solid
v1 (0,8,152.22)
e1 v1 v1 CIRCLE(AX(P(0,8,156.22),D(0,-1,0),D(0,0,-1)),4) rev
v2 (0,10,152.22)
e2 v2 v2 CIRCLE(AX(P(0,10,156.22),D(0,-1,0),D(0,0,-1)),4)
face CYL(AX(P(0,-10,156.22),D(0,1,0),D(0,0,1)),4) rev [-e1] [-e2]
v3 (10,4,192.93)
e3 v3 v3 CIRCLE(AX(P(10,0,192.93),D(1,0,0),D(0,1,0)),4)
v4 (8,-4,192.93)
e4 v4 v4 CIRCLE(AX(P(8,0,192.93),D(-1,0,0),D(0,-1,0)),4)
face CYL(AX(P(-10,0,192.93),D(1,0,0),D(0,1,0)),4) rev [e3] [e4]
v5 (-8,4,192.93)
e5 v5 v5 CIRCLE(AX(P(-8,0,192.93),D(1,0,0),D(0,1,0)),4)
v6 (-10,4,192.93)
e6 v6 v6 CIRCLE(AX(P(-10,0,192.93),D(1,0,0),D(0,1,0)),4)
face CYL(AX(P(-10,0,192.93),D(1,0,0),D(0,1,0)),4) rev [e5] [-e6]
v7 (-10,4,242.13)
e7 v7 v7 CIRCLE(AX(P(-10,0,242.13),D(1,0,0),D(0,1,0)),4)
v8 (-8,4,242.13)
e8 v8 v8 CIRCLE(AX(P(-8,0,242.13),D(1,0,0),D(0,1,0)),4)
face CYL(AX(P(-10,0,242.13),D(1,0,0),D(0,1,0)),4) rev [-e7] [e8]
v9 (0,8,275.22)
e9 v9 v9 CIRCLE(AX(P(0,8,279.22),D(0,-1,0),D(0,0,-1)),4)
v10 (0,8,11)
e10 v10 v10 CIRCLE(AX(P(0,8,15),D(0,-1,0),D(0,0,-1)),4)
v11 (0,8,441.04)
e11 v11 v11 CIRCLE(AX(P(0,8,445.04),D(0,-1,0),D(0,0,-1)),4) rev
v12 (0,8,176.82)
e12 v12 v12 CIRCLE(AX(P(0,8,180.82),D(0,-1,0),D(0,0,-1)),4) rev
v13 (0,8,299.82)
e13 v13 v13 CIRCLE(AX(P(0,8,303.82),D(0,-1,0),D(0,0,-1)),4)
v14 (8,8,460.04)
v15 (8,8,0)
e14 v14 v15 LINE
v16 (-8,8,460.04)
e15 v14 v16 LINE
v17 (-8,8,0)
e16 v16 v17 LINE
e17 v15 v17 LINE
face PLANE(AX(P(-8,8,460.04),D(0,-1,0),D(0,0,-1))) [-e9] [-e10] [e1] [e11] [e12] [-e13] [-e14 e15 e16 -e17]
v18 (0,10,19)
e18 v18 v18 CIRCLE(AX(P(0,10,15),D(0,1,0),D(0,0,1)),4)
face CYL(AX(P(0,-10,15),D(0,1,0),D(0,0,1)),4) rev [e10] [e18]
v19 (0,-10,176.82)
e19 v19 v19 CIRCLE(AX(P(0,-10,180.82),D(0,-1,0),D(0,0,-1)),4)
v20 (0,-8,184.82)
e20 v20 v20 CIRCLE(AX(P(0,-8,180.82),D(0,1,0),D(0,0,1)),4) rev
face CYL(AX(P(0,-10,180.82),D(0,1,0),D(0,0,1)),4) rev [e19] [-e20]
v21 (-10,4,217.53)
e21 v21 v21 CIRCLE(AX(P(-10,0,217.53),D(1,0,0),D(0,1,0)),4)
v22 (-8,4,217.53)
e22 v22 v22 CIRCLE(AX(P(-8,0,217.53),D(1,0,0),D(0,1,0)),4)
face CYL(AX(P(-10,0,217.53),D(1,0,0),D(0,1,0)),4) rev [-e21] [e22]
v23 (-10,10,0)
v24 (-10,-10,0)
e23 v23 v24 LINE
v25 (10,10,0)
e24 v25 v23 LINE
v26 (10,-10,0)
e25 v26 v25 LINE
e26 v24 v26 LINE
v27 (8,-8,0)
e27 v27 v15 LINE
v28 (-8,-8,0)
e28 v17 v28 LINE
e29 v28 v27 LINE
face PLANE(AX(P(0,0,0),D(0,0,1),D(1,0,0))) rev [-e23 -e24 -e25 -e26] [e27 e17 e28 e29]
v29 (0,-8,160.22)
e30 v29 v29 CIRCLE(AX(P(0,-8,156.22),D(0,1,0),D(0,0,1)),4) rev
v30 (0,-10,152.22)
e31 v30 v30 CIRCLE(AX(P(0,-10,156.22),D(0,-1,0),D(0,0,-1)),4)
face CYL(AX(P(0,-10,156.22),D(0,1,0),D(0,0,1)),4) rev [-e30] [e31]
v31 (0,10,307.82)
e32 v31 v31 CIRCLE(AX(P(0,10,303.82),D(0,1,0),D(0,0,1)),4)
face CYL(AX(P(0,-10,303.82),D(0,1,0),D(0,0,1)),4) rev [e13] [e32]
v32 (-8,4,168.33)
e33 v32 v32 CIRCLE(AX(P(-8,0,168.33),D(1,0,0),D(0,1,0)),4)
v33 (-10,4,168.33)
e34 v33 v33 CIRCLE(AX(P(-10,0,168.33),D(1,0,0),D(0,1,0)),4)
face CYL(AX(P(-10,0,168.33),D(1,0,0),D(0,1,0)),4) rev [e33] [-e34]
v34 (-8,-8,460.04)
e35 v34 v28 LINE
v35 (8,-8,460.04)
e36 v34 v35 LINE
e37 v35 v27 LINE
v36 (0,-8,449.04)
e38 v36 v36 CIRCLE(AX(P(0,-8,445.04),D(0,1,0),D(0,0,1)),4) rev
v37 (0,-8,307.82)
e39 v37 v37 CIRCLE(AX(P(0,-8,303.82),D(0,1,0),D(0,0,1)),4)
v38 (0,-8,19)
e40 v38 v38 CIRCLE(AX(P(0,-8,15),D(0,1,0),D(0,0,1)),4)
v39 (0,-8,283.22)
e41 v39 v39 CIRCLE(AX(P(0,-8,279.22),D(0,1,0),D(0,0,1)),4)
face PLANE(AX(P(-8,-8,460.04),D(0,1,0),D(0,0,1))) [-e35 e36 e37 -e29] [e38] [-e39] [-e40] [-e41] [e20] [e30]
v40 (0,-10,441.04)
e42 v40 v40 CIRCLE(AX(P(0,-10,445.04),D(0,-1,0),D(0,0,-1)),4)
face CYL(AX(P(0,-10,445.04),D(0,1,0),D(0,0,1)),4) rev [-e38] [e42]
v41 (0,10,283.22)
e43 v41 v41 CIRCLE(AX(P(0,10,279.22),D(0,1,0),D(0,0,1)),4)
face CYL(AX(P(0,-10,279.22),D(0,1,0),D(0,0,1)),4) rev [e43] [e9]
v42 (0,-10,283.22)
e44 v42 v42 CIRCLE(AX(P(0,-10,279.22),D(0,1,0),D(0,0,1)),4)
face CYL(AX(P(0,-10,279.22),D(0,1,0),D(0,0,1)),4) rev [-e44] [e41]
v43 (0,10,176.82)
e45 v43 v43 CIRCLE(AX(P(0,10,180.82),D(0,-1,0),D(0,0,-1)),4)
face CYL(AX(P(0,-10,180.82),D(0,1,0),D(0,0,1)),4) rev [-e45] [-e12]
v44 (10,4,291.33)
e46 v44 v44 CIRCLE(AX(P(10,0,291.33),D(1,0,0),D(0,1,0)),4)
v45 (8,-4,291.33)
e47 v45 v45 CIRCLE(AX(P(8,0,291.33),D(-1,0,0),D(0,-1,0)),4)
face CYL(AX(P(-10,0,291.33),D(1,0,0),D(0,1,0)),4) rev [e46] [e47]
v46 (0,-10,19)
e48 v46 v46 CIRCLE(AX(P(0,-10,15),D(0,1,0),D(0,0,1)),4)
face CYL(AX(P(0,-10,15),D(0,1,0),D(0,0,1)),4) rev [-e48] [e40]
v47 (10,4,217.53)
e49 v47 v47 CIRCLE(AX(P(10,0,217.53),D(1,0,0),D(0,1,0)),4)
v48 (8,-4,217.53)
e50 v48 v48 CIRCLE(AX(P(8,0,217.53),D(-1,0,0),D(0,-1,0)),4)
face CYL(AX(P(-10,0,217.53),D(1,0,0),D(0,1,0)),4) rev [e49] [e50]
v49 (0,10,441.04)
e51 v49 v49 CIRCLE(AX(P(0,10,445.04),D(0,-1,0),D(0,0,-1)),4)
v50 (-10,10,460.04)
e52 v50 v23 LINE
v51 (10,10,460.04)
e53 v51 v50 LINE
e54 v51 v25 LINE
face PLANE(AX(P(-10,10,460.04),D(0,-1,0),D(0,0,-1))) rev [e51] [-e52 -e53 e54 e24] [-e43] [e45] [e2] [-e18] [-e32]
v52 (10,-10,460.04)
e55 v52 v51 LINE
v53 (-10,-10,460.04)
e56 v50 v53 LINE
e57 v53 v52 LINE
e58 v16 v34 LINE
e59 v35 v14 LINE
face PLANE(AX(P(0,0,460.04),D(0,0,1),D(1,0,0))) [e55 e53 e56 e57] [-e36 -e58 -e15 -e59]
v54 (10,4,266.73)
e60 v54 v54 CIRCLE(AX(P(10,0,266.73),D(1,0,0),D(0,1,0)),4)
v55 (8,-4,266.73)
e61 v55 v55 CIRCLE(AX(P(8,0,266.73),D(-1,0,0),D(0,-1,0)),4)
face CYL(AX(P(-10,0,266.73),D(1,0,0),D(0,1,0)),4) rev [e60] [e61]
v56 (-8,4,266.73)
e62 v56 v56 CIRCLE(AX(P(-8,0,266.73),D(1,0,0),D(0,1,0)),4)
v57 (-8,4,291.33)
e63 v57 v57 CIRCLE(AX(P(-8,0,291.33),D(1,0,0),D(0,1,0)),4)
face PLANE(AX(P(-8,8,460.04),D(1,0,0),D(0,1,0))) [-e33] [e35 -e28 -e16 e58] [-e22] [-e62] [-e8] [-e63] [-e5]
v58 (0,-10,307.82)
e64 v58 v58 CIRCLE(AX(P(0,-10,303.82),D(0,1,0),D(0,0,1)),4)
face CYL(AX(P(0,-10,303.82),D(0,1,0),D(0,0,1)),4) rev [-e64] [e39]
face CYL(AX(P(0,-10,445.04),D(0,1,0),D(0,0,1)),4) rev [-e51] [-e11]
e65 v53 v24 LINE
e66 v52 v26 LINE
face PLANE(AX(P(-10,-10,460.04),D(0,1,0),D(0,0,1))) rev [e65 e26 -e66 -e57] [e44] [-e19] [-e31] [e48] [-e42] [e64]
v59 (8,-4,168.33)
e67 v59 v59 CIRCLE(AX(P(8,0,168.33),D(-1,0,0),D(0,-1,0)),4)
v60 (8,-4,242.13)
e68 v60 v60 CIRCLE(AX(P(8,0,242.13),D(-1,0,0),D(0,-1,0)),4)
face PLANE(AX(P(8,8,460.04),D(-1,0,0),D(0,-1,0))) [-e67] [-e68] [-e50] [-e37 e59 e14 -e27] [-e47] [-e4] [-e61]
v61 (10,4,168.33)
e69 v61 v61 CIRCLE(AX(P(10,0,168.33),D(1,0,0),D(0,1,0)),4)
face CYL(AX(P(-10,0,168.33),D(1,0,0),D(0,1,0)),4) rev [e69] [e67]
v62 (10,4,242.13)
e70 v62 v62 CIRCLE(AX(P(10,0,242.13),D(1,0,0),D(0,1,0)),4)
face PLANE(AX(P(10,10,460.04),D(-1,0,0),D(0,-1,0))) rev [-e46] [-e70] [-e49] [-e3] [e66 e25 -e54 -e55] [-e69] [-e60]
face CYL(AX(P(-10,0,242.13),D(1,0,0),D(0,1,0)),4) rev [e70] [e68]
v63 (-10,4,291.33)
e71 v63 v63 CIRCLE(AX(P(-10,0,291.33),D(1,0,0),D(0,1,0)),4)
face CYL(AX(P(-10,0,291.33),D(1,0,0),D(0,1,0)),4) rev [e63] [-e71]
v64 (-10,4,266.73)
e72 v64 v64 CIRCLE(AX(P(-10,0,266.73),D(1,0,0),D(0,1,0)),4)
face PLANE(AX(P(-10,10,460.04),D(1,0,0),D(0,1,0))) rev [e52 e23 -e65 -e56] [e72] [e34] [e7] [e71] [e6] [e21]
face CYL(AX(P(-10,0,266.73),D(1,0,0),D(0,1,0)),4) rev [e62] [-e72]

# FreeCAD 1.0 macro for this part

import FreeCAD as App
import Part
import Sketcher
from FreeCAD import Vector
Q = App.Units.Quantity


def add_polygon(sketch, points):
    """Adds a closed chain of lines whose ends are joined by coincident constraints."""
    first, n = sketch.GeometryCount, len(points)
    for a, b in zip(points, points[1:] + points[:1]):
        sketch.addGeometry(Part.LineSegment(App.Vector(*a, 0), App.Vector(*b, 0)), False)
    for i in range(n):
        sketch.addConstraint(Sketcher.Constraint("Coincident", first + i, 2, first + (i + 1) % n, 1))

doc = App.newDocument("Part")
body = doc.addObject("PartDesign::Body", "Body")

# Sketch on XY plane
sketch1 = doc.addObject("Sketcher::SketchObject", "Sketch")
body.addObject(sketch1)
sketch1.AttachmentSupport = (doc.XY_Plane, [""])
sketch1.MapMode = "FlatFace"
add_polygon(sketch1, [(-10, 10), (-10, -10), (10, -10), (10, 10)])  # lines 0-3
add_polygon(sketch1, [(8, -8), (-8, -8), (-8, 8), (8, 8)])  # lines 4-7
sketch1.addConstraint([
    Sketcher.Constraint("Vertical", 0),
    Sketcher.Constraint("Horizontal", 1),
    Sketcher.Constraint("Vertical", 2),
    Sketcher.Constraint("Horizontal", 3),
    Sketcher.Constraint("Horizontal", 4),
    Sketcher.Constraint("Vertical", 5),
    Sketcher.Constraint("Horizontal", 6),
    Sketcher.Constraint("Vertical", 7),
    Sketcher.Constraint("Symmetric", 0, 2, 2, 2, -1, 1),
    Sketcher.Constraint("Symmetric", 4, 2, 6, 2, -1, 1),
    Sketcher.Constraint("Equal", 3, 0),
    Sketcher.Constraint("Equal", 6, 5),
    Sketcher.Constraint("DistanceX", 1, 1, 1, 2, Q("20 mm")),
    Sketcher.Constraint("DistanceX", 4, 2, 4, 1, Q("16 mm")),
])
pad1 = doc.addObject("PartDesign::Pad", "Pad")
body.addObject(pad1)
pad1.Profile = sketch1
pad1.Length = 460.04

# Sketch on XZ plane
sketch2 = doc.addObject("Sketcher::SketchObject", "Sketch001")
body.addObject(sketch2)
sketch2.AttachmentSupport = (doc.XZ_Plane, [""])
sketch2.MapMode = "FlatFace"
sketch2.AttachmentOffset = App.Placement(Vector(0, 0, -10), App.Rotation())
sketch2.addGeometry(Part.Circle(Vector(0, 15, 0), Vector(0, 0, 1), 4), False)
sketch2.addConstraint([
    Sketcher.Constraint("PointOnObject", 0, 3, -2),
    Sketcher.Constraint("Diameter", 0, Q("8 mm")),
    Sketcher.Constraint("DistanceY", -1, 1, 0, 3, Q("15 mm")),
])
pocket1 = doc.addObject("PartDesign::Pocket", "Pocket")
body.addObject(pocket1)
pocket1.Profile = sketch2
pocket1.Type = "ThroughAll"
pocket1.Reversed = True
doc.recompute()

datumplane = doc.addObject("PartDesign::Plane", "DatumPlane")
body.addObject(datumplane)
datumplane.AttachmentSupport = (doc.XY_Plane, [""])
datumplane.MapMode = "FlatFace"
datumplane.AttachmentOffset = App.Placement(Vector(0, 0, 230.02), App.Rotation())
mirrored = doc.addObject("PartDesign::Mirrored", "Mirrored")
body.addObject(mirrored)
mirrored.Originals = [pocket1]
mirrored.MirrorPlane = (datumplane, [""])
body.Tip = mirrored

# Sketch on YZ plane
sketch3 = doc.addObject("Sketcher::SketchObject", "Sketch002")
body.addObject(sketch3)
sketch3.AttachmentSupport = (doc.YZ_Plane, [""])
sketch3.MapMode = "FlatFace"
sketch3.AttachmentOffset = App.Placement(Vector(0, 0, 10), App.Rotation())
sketch3.addGeometry(Part.Circle(Vector(0, 291.33, 0), Vector(0, 0, 1), 4), False)
sketch3.addConstraint([
    Sketcher.Constraint("PointOnObject", 0, 3, -2),
    Sketcher.Constraint("Diameter", 0, Q("8 mm")),
    Sketcher.Constraint("DistanceY", -1, 1, 0, 3, Q("291.33 mm")),
])
pocket2 = doc.addObject("PartDesign::Pocket", "Pocket001")
body.addObject(pocket2)
pocket2.Profile = sketch3
pocket2.Type = "ThroughAll"
doc.recompute()

linearpattern = doc.addObject("PartDesign::LinearPattern", "LinearPattern")
body.addObject(linearpattern)
linearpattern.Originals = [pocket2]
linearpattern.Direction = (doc.Z_Axis, [""])
linearpattern.Mode = "offset"
linearpattern.Offset = 24.6
linearpattern.Occurrences = 6
linearpattern.Reversed = True
body.Tip = linearpattern

# Sketch on XZ plane
sketch4 = doc.addObject("Sketcher::SketchObject", "Sketch003")
body.addObject(sketch4)
sketch4.AttachmentSupport = (doc.XZ_Plane, [""])
sketch4.MapMode = "FlatFace"
sketch4.AttachmentOffset = App.Placement(Vector(0, 0, -10), App.Rotation())
sketch4.addGeometry([
    Part.Circle(Vector(0, 303.82, 0), Vector(0, 0, 1), 4),
    Part.Circle(Vector(0, 279.22, 0), Vector(0, 0, 1), 4),
], False)
sketch4.addConstraint([
    Sketcher.Constraint("Equal", 0, 1),
    Sketcher.Constraint("PointOnObject", 0, 3, -2),
    Sketcher.Constraint("PointOnObject", 1, 3, -2),
    Sketcher.Constraint("Diameter", 0, Q("8 mm")),
    Sketcher.Constraint("DistanceY", 1, 3, 0, 3, Q("24.6 mm")),
    Sketcher.Constraint("DistanceY", -1, 1, 0, 3, Q("303.82 mm")),
])
pocket3 = doc.addObject("PartDesign::Pocket", "Pocket002")
body.addObject(pocket3)
pocket3.Profile = sketch4
pocket3.Type = "ThroughAll"
pocket3.Reversed = True
doc.recompute()

datumplane2 = doc.addObject("PartDesign::Plane", "DatumPlane001")
body.addObject(datumplane2)
datumplane2.AttachmentSupport = (doc.XY_Plane, [""])
datumplane2.MapMode = "FlatFace"
datumplane2.AttachmentOffset = App.Placement(Vector(0, 0, 230.02), App.Rotation())
mirrored2 = doc.addObject("PartDesign::Mirrored", "Mirrored001")
body.addObject(mirrored2)
mirrored2.Originals = [pocket3]
mirrored2.MirrorPlane = (datumplane2, [""])
body.Tip = mirrored2

doc.recompute()
